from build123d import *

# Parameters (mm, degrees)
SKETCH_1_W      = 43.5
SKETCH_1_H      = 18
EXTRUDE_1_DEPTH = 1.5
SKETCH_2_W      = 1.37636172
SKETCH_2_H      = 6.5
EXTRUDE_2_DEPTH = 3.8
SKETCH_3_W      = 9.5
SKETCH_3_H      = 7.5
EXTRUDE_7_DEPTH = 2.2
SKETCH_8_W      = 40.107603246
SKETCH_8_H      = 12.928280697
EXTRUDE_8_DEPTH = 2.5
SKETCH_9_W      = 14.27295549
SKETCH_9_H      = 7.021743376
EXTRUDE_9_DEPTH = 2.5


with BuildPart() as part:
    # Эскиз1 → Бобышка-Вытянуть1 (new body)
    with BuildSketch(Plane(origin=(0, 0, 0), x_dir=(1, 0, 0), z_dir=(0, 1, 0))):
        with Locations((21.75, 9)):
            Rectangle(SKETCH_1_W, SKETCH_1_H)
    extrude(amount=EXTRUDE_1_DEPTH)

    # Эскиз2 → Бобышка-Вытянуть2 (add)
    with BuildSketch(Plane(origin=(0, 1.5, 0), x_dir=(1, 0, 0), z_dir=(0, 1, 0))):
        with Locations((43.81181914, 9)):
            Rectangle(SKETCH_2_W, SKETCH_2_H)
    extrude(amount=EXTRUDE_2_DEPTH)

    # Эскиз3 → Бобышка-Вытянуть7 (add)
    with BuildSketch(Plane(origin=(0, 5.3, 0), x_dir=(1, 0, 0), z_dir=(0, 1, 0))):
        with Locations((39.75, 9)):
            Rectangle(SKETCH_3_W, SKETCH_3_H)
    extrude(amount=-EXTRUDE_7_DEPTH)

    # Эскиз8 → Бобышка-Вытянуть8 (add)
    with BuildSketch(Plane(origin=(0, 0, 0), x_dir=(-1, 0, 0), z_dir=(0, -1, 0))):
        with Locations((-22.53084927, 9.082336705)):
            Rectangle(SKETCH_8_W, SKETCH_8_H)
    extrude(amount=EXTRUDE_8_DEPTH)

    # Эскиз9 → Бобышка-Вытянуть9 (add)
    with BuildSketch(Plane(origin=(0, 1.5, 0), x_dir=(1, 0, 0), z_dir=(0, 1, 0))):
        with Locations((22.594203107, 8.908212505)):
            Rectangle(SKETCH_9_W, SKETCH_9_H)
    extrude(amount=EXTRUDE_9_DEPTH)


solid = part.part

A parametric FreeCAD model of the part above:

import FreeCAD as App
import Part
import Sketcher

V = App.Vector


def add_polygon(sketch, points):
    """Adds a closed chain of lines whose ends are joined by coincident constraints."""
    first, n = sketch.GeometryCount, len(points)
    for a, b in zip(points, points[1:] + points[:1]):
        sketch.addGeometry(Part.LineSegment(App.Vector(*a, 0), App.Vector(*b, 0)), False)
    for i in range(n):
        sketch.addConstraint(Sketcher.Constraint("Coincident", first + i, 2, first + (i + 1) % n, 1))

doc = App.newDocument("Part")
body = doc.addObject("PartDesign::Body", "Body")

sketch1 = doc.addObject("Sketcher::SketchObject", "Sketch")
body.addObject(sketch1)
sketch1.AttachmentSupport = (doc.XZ_Plane, [""])
sketch1.MapMode = "FlatFace"
add_polygon(sketch1, [(0, -18), (0, 0), (44, 0), (44, -18)])
sketch1.addConstraint(Sketcher.Constraint("Vertical", 0))
sketch1.addConstraint(Sketcher.Constraint("Horizontal", 1))
sketch1.addConstraint(Sketcher.Constraint("Vertical", 2))
sketch1.addConstraint(Sketcher.Constraint("Horizontal", 3))
sketch1.addConstraint(Sketcher.Constraint("Coincident", 0, 2, -1, 1))
sketch1.addConstraint(Sketcher.Constraint("DistanceY", 0, 1, 0, 2, 18.0))
sketch1.addConstraint(Sketcher.Constraint("DistanceX", 1, 1, 1, 2, 43.5))
pad1 = doc.addObject("PartDesign::Pad", "Pad")
body.addObject(pad1)
pad1.Profile = sketch1
pad1.Length = 1.5
pad1.Reversed = True

sketch2 = doc.addObject("Sketcher::SketchObject", "Sketch001")
body.addObject(sketch2)
sketch2.AttachmentSupport = (doc.XZ_Plane, [""])
sketch2.MapMode = "FlatFace"
sketch2.AttachmentOffset = App.Placement(V(0, 0, -1.5), App.Rotation())
add_polygon(sketch2, [(43.1, -12.2), (43.1, -5.8), (44.5, -5.8), (44.5, -12.2)])
sketch2.addConstraint(Sketcher.Constraint("Vertical", 0))
sketch2.addConstraint(Sketcher.Constraint("Horizontal", 1))
sketch2.addConstraint(Sketcher.Constraint("Vertical", 2))
sketch2.addConstraint(Sketcher.Constraint("Horizontal", 3))
sketch2.addConstraint(Sketcher.Constraint("DistanceY", 0, 1, 0, 2, 6.5))
sketch2.addConstraint(Sketcher.Constraint("DistanceX", -1, 1, 1, 2, 44.5))
sketch2.addConstraint(Sketcher.Constraint("DistanceY", 0, 2, -1, 1, 5.75))
sketch2.addConstraint(Sketcher.Constraint("DistanceX", 1, 1, 1, 2, 1.376362))
pad2 = doc.addObject("PartDesign::Pad", "Pad001")
body.addObject(pad2)
pad2.Profile = sketch2
pad2.Length = 3.8
pad2.Reversed = True

sketch3 = doc.addObject("Sketcher::SketchObject", "Sketch002")
body.addObject(sketch3)
sketch3.AttachmentSupport = (doc.XZ_Plane, [""])
sketch3.MapMode = "FlatFace"
sketch3.AttachmentOffset = App.Placement(V(0, 0, -5.3), App.Rotation())
add_polygon(sketch3, [(35, -13), (35, -5), (44, -5), (44, -13)])
sketch3.addConstraint(Sketcher.Constraint("Vertical", 0))
sketch3.addConstraint(Sketcher.Constraint("Horizontal", 1))
sketch3.addConstraint(Sketcher.Constraint("Vertical", 2))
sketch3.addConstraint(Sketcher.Constraint("Horizontal", 3))
sketch3.addConstraint(Sketcher.Constraint("DistanceX", 1, 1, 1, 2, 9.5))
sketch3.addConstraint(Sketcher.Constraint("DistanceY", 0, 1, 0, 2, 7.5))
sketch3.addConstraint(Sketcher.Constraint("DistanceX", -1, 1, 0, 2, 35.0))
sketch3.addConstraint(Sketcher.Constraint("DistanceY", 0, 2, -1, 1, 5.25))
pad3 = doc.addObject("PartDesign::Pad", "Pad002")
body.addObject(pad3)
pad3.Profile = sketch3
pad3.Length = 2.2

sketch4 = doc.addObject("Sketcher::SketchObject", "Sketch003")
body.addObject(sketch4)
sketch4.AttachmentSupport = (doc.XZ_Plane, [""])
sketch4.MapMode = "FlatFace"
add_polygon(sketch4, [(43, -16), (43, -3), (2, -3), (2, -16)])
sketch4.addConstraint(Sketcher.Constraint("Vertical", 0))
sketch4.addConstraint(Sketcher.Constraint("Horizontal", 1))
sketch4.addConstraint(Sketcher.Constraint("Vertical", 2))
sketch4.addConstraint(Sketcher.Constraint("Horizontal", 3))
sketch4.addConstraint(Sketcher.Constraint("DistanceY", 0, 1, 0, 2, 12.928281))
sketch4.addConstraint(Sketcher.Constraint("DistanceX", 1, 2, 1, 1, 40.107603))
sketch4.addConstraint(Sketcher.Constraint("DistanceX", -1, 1, 0, 2, 42.584651))
sketch4.addConstraint(Sketcher.Constraint("DistanceY", 0, 2, -1, 1, 2.618196))
pad4 = doc.addObject("PartDesign::Pad", "Pad003")
body.addObject(pad4)
pad4.Profile = sketch4
pad4.Length = 2.5

sketch5 = doc.addObject("Sketcher::SketchObject", "Sketch004")
body.addObject(sketch5)
sketch5.AttachmentSupport = (doc.XZ_Plane, [""])
sketch5.MapMode = "FlatFace"
sketch5.AttachmentOffset = App.Placement(V(0, 0, -1.5), App.Rotation())
add_polygon(sketch5, [(15, -12), (15, -5), (30, -5), (30, -12)])
sketch5.addConstraint(Sketcher.Constraint("Vertical", 0))
sketch5.addConstraint(Sketcher.Constraint("Horizontal", 1))
sketch5.addConstraint(Sketcher.Constraint("Vertical", 2))
sketch5.addConstraint(Sketcher.Constraint("Horizontal", 3))
sketch5.addConstraint(Sketcher.Constraint("DistanceX", 1, 1, 1, 2, 14.272955))
sketch5.addConstraint(Sketcher.Constraint("DistanceY", 0, 1, 0, 2, 7.021743))
sketch5.addConstraint(Sketcher.Constraint("DistanceY", 0, 2, -1, 1, 5.397341))
sketch5.addConstraint(Sketcher.Constraint("DistanceX", -1, 1, 1, 2, 29.730681))
pad5 = doc.addObject("PartDesign::Pad", "Pad004")
body.addObject(pad5)
pad5.Profile = sketch5
pad5.Length = 2.5
pad5.Reversed = True

doc.recompute()
